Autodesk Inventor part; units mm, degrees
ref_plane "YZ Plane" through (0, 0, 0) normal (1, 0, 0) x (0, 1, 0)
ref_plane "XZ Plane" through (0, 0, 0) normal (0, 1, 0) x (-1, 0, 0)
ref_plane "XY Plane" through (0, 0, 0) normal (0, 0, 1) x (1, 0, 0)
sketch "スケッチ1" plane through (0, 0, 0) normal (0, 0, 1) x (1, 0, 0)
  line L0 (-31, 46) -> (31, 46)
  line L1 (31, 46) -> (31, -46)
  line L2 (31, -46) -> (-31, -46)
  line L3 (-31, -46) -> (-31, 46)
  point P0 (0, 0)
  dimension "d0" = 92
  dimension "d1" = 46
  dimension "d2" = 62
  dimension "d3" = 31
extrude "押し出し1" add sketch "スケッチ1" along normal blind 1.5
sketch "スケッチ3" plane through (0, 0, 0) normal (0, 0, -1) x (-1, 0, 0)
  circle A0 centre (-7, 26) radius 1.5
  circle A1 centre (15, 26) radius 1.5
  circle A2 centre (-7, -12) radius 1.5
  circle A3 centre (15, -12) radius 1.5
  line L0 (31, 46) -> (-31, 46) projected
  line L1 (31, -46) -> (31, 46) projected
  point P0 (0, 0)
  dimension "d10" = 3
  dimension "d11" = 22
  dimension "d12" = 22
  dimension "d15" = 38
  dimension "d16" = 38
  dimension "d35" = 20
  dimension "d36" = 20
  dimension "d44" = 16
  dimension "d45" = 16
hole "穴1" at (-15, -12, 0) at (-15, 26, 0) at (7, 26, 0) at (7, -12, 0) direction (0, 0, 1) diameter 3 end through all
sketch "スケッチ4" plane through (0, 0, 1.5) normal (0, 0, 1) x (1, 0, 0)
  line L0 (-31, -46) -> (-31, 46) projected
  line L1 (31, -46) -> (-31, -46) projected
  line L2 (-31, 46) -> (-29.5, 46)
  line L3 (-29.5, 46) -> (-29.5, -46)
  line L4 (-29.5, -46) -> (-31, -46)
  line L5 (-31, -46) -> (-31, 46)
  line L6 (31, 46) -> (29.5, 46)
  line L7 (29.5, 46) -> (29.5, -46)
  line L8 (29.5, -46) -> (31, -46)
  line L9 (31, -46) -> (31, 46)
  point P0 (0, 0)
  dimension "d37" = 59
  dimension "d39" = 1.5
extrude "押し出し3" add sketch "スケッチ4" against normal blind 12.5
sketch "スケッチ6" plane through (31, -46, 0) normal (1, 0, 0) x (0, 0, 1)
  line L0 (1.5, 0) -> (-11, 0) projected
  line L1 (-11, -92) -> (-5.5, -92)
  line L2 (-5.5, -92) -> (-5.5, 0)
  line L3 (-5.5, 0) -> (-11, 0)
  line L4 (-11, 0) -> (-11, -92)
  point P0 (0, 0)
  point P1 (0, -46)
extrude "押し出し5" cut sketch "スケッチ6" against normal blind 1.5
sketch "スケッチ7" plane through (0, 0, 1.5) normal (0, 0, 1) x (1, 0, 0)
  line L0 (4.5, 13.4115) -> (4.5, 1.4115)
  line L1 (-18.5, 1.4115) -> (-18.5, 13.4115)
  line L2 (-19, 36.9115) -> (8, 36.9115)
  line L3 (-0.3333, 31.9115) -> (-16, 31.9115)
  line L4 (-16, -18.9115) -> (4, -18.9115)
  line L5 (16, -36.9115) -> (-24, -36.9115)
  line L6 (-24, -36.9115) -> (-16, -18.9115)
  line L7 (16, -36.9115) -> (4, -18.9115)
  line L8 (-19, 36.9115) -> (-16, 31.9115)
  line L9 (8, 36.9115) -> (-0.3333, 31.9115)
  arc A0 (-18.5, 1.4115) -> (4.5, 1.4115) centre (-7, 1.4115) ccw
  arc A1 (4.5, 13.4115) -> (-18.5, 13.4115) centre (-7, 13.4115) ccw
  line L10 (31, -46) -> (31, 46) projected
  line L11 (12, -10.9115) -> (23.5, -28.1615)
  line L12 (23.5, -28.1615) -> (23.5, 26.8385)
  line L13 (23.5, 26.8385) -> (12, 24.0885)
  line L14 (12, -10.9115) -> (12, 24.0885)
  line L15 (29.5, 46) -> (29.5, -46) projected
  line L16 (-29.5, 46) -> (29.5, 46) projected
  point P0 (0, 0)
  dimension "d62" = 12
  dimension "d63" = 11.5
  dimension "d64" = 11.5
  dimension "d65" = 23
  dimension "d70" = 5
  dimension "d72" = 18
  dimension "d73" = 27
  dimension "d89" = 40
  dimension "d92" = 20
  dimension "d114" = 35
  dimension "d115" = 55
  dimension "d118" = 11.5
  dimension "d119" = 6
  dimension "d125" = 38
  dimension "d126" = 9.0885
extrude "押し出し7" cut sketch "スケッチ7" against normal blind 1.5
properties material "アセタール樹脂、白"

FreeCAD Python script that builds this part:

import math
import FreeCAD as App
import Part
import Sketcher

V = App.Vector


def add_polygon(sketch, points):
    """Adds a closed chain of lines whose ends are joined by coincident constraints."""
    first, n = sketch.GeometryCount, len(points)
    for a, b in zip(points, points[1:] + points[:1]):
        sketch.addGeometry(Part.LineSegment(App.Vector(*a, 0), App.Vector(*b, 0)), False)
    for i in range(n):
        sketch.addConstraint(Sketcher.Constraint("Coincident", first + i, 2, first + (i + 1) % n, 1))

doc = App.newDocument("Part")
body = doc.addObject("PartDesign::Body", "Body")

# Sketch on XY plane
sketch1 = body.newObject("Sketcher::SketchObject", "Sketch")
sketch1.AttachmentSupport = (doc.getObject("XY_Plane"), [""])
sketch1.MapMode = "FlatFace"
add_polygon(sketch1, [(31, 46), (-31, 46), (-31, -46), (31, -46)])  # lines 0-3
sketch1.addConstraint(Sketcher.Constraint("Horizontal", 0))
sketch1.addConstraint(Sketcher.Constraint("Vertical", 1))
sketch1.addConstraint(Sketcher.Constraint("Horizontal", 2))
sketch1.addConstraint(Sketcher.Constraint("Vertical", 3))
sketch1.addConstraint(Sketcher.Constraint("Symmetric", 0, 2, 2, 2, -1, 1))
sketch1.addConstraint(Sketcher.Constraint("DistanceX", 0, 2, 0, 1, 62.0))
sketch1.addConstraint(Sketcher.Constraint("DistanceY", 1, 2, 1, 1, 92.0))
pad1 = body.newObject("PartDesign::Pad", "Pad")
pad1.Profile = sketch1
pad1.Length = 1.5

# Sketch on XY plane
sketch2 = body.newObject("Sketcher::SketchObject", "Sketch001")
sketch2.AttachmentSupport = (doc.getObject("XY_Plane"), [""])
sketch2.MapMode = "FlatFace"
sketch2.addGeometry(Part.Circle(V(-15, -12, 0), V(0, 0, 1), 1.5), False)
sketch2.addGeometry(Part.Circle(V(-15, 26, 0), V(0, 0, 1), 1.5), False)
sketch2.addGeometry(Part.Circle(V(7, 26, 0), V(0, 0, 1), 1.5), False)
sketch2.addGeometry(Part.Circle(V(7, -12, 0), V(0, 0, 1), 1.5), False)
sketch2.addConstraint(Sketcher.Constraint("Equal", 0, 1))
sketch2.addConstraint(Sketcher.Constraint("Equal", 1, 2))
sketch2.addConstraint(Sketcher.Constraint("Equal", 2, 3))
sketch2.addConstraint(Sketcher.Constraint("Horizontal", 1, 3, 2, 3))
sketch2.addConstraint(Sketcher.Constraint("Horizontal", 0, 3, 3, 3))
sketch2.addConstraint(Sketcher.Constraint("Vertical", 0, 3, 1, 3))
sketch2.addConstraint(Sketcher.Constraint("Vertical", 2, 3, 3, 3))
sketch2.addConstraint(Sketcher.Constraint("Diameter", 0, 3.0))
sketch2.addConstraint(Sketcher.Constraint("DistanceX", 0, 3, -1, 1, 15.0))
sketch2.addConstraint(Sketcher.Constraint("DistanceY", 0, 3, -1, 1, 12.0))
sketch2.addConstraint(Sketcher.Constraint("DistanceY", -1, 1, 1, 3, 26.0))
sketch2.addConstraint(Sketcher.Constraint("DistanceX", -1, 1, 2, 3, 7.0))
doc.recompute()
hole = body.newObject("PartDesign::Hole", "Hole")
hole.Profile = sketch2
hole.ThreadType = "None"
hole.Diameter = 3
hole.DepthType = "ThroughAll"
hole.Reversed = True

# Sketch on XY plane
sketch3 = body.newObject("Sketcher::SketchObject", "Sketch002")
sketch3.AttachmentSupport = (doc.getObject("XY_Plane"), [""])
sketch3.MapMode = "FlatFace"
sketch3.AttachmentOffset = App.Placement(V(0, 0, 1.5), App.Rotation())
add_polygon(sketch3, [(29.5, 46), (29.5, -46), (31, -46), (31, 46)])  # lines 0-3
add_polygon(sketch3, [(-31, 46), (-31, -46), (-29.5, -46), (-29.5, 46)])  # lines 4-7
sketch3.addConstraint(Sketcher.Constraint("Vertical", 0))
sketch3.addConstraint(Sketcher.Constraint("Horizontal", 1))
sketch3.addConstraint(Sketcher.Constraint("Vertical", 2))
sketch3.addConstraint(Sketcher.Constraint("Horizontal", 3))
sketch3.addConstraint(Sketcher.Constraint("Vertical", 4))
sketch3.addConstraint(Sketcher.Constraint("Horizontal", 5))
sketch3.addConstraint(Sketcher.Constraint("Vertical", 6))
sketch3.addConstraint(Sketcher.Constraint("Horizontal", 7))
sketch3.addConstraint(Sketcher.Constraint("Symmetric", 2, 2, 4, 2, -1, 1))
sketch3.addConstraint(Sketcher.Constraint("Symmetric", 0, 2, 6, 2, -1, 1))
sketch3.addConstraint(Sketcher.Constraint("Horizontal", 1, 2, 4, 2))
sketch3.addConstraint(Sketcher.Constraint("DistanceX", 1, 1, 1, 2, 1.5))
sketch3.addConstraint(Sketcher.Constraint("DistanceX", 5, 2, 0, 2, 59.0))
sketch3.addConstraint(Sketcher.Constraint("DistanceY", 0, 2, 0, 1, 92.0))
pad2 = body.newObject("PartDesign::Pad", "Pad001")
pad2.Profile = sketch3
pad2.Length = 12.5
pad2.Reversed = True

# Sketch on YZ plane
sketch4 = body.newObject("Sketcher::SketchObject", "Sketch003")
sketch4.AttachmentSupport = (doc.getObject("YZ_Plane"), [""])
sketch4.MapMode = "FlatFace"
sketch4.AttachmentOffset = App.Placement(V(0, 0, 31), App.Rotation())
add_polygon(sketch4, [(46, -6), (-46, -6), (-46, -11), (46, -11)])  # lines 0-3
sketch4.addConstraint(Sketcher.Constraint("Horizontal", 0))
sketch4.addConstraint(Sketcher.Constraint("Vertical", 1))
sketch4.addConstraint(Sketcher.Constraint("Horizontal", 2))
sketch4.addConstraint(Sketcher.Constraint("Vertical", 3))
sketch4.addConstraint(Sketcher.Constraint("DistanceX", 0, 2, 0, 1, 92.0))
sketch4.addConstraint(Sketcher.Constraint("DistanceY", 1, 2, 1, 1, 5.5))
sketch4.addConstraint(Sketcher.Constraint("DistanceX", 0, 2, -1, 1, 46.0))
sketch4.addConstraint(Sketcher.Constraint("DistanceY", 1, 2, -1, 1, 11.0))
pocket1 = body.newObject("PartDesign::Pocket", "Pocket")
pocket1.Profile = sketch4
pocket1.Length = 1.5

# Sketch on XY plane
sketch5 = body.newObject("Sketcher::SketchObject", "Sketch004")
sketch5.AttachmentSupport = (doc.getObject("XY_Plane"), [""])
sketch5.MapMode = "FlatFace"
sketch5.AttachmentOffset = App.Placement(V(0, 0, 1.5), App.Rotation())
sketch5.addGeometry(Part.LineSegment(V(4, 1, 0), V(4, 13, 0)), False)  # 0
sketch5.addGeometry(Part.ArcOfCircle(Part.Circle(V(-7, 13, 0), V(0, 0, 1), 12), math.radians(0), math.radians(180)), False)  # 1
sketch5.addGeometry(Part.LineSegment(V(-18, 13, 0), V(-18, 1, 0)), False)  # 2
sketch5.addGeometry(Part.ArcOfCircle(Part.Circle(V(-7, 1, 0), V(0, 0, 1), 12), math.radians(180), math.radians(360)), False)  # 3
add_polygon(sketch5, [(8, 37), (-19, 37), (-16, 32), (0, 32)])  # lines 4-7
add_polygon(sketch5, [(4, -19), (-16, -19), (-24, -37), (16, -37)])  # lines 8-11
add_polygon(sketch5, [(12, 24), (12, -11), (24, -28), (24, 27)])  # lines 12-15
sketch5.addConstraint(Sketcher.Constraint("Tangent", 0, 2, 1, 1))
sketch5.addConstraint(Sketcher.Constraint("Tangent", 1, 2, 2, 1))
sketch5.addConstraint(Sketcher.Constraint("Tangent", 2, 2, 3, 1))
sketch5.addConstraint(Sketcher.Constraint("Tangent", 3, 2, 0, 1))
sketch5.addConstraint(Sketcher.Constraint("Vertical", 0))
sketch5.addConstraint(Sketcher.Constraint("Vertical", 2))
sketch5.addConstraint(Sketcher.Constraint("Horizontal", 4))
sketch5.addConstraint(Sketcher.Constraint("Horizontal", 6))
sketch5.addConstraint(Sketcher.Constraint("Horizontal", 8))
sketch5.addConstraint(Sketcher.Constraint("Horizontal", 10))
sketch5.addConstraint(Sketcher.Constraint("Vertical", 12))
sketch5.addConstraint(Sketcher.Constraint("Vertical", 14))
sketch5.addConstraint(Sketcher.Constraint("Perpendicular", 5, 7))
sketch5.addConstraint(Sketcher.Constraint("Parallel", 11, 13))
sketch5.addConstraint(Sketcher.Constraint("Vertical", 5, 2, 8, 2))
sketch5.addConstraint(Sketcher.Constraint("Radius", 1, 11.5))
sketch5.addConstraint(Sketcher.Constraint("DistanceX", 4, 2, 4, 1, 27.0))
sketch5.addConstraint(Sketcher.Constraint("DistanceX", 8, 2, 8, 1, 20.0))
sketch5.addConstraint(Sketcher.Constraint("DistanceX", 10, 1, 10, 2, 40.0))
sketch5.addConstraint(Sketcher.Constraint("DistanceY", 0, 1, 0, 2, 12.0))
sketch5.addConstraint(Sketcher.Constraint("DistanceY", 12, 2, 12, 1, 35.0))
sketch5.addConstraint(Sketcher.Constraint("DistanceY", 14, 1, 14, 2, 55.0))
sketch5.addConstraint(Sketcher.Constraint("DistanceX", -1, 1, 12, 2, 12.0))
sketch5.addConstraint(Sketcher.Constraint("DistanceX", 4, 2, 1, 3, 12.0))
sketch5.addConstraint(Sketcher.Constraint("DistanceY", 5, 2, 4, 2, 5.0))
sketch5.addConstraint(Sketcher.Constraint("DistanceY", 9, 2, 8, 2, 18.0))
sketch5.addConstraint(Sketcher.Constraint("DistanceX", 3, 3, 10, 2, 23.0))
sketch5.addConstraint(Sketcher.Constraint("DistanceX", 11, 2, 10, 2, 12.0))
sketch5.addConstraint(Sketcher.Constraint("DistanceX", 12, 2, 13, 2, 11.5))
sketch5.addConstraint(Sketcher.Constraint("DistanceX", 1, 3, -1, 1, 7.0))
sketch5.addConstraint(Sketcher.Constraint("DistanceY", 11, 2, 12, 2, 8.0))
sketch5.addConstraint(Sketcher.Constraint("DistanceY", 1, 2, 4, 2, 23.5))
sketch5.addConstraint(Sketcher.Constraint("DistanceY", 8, 2, 2, 2, 20.323))
sketch5.addConstraint(Sketcher.Constraint("DistanceY", -1, 1, 1, 3, 13.4115))
pocket2 = body.newObject("PartDesign::Pocket", "Pocket001")
pocket2.Profile = sketch5
pocket2.Length = 1.5

doc.recompute()
